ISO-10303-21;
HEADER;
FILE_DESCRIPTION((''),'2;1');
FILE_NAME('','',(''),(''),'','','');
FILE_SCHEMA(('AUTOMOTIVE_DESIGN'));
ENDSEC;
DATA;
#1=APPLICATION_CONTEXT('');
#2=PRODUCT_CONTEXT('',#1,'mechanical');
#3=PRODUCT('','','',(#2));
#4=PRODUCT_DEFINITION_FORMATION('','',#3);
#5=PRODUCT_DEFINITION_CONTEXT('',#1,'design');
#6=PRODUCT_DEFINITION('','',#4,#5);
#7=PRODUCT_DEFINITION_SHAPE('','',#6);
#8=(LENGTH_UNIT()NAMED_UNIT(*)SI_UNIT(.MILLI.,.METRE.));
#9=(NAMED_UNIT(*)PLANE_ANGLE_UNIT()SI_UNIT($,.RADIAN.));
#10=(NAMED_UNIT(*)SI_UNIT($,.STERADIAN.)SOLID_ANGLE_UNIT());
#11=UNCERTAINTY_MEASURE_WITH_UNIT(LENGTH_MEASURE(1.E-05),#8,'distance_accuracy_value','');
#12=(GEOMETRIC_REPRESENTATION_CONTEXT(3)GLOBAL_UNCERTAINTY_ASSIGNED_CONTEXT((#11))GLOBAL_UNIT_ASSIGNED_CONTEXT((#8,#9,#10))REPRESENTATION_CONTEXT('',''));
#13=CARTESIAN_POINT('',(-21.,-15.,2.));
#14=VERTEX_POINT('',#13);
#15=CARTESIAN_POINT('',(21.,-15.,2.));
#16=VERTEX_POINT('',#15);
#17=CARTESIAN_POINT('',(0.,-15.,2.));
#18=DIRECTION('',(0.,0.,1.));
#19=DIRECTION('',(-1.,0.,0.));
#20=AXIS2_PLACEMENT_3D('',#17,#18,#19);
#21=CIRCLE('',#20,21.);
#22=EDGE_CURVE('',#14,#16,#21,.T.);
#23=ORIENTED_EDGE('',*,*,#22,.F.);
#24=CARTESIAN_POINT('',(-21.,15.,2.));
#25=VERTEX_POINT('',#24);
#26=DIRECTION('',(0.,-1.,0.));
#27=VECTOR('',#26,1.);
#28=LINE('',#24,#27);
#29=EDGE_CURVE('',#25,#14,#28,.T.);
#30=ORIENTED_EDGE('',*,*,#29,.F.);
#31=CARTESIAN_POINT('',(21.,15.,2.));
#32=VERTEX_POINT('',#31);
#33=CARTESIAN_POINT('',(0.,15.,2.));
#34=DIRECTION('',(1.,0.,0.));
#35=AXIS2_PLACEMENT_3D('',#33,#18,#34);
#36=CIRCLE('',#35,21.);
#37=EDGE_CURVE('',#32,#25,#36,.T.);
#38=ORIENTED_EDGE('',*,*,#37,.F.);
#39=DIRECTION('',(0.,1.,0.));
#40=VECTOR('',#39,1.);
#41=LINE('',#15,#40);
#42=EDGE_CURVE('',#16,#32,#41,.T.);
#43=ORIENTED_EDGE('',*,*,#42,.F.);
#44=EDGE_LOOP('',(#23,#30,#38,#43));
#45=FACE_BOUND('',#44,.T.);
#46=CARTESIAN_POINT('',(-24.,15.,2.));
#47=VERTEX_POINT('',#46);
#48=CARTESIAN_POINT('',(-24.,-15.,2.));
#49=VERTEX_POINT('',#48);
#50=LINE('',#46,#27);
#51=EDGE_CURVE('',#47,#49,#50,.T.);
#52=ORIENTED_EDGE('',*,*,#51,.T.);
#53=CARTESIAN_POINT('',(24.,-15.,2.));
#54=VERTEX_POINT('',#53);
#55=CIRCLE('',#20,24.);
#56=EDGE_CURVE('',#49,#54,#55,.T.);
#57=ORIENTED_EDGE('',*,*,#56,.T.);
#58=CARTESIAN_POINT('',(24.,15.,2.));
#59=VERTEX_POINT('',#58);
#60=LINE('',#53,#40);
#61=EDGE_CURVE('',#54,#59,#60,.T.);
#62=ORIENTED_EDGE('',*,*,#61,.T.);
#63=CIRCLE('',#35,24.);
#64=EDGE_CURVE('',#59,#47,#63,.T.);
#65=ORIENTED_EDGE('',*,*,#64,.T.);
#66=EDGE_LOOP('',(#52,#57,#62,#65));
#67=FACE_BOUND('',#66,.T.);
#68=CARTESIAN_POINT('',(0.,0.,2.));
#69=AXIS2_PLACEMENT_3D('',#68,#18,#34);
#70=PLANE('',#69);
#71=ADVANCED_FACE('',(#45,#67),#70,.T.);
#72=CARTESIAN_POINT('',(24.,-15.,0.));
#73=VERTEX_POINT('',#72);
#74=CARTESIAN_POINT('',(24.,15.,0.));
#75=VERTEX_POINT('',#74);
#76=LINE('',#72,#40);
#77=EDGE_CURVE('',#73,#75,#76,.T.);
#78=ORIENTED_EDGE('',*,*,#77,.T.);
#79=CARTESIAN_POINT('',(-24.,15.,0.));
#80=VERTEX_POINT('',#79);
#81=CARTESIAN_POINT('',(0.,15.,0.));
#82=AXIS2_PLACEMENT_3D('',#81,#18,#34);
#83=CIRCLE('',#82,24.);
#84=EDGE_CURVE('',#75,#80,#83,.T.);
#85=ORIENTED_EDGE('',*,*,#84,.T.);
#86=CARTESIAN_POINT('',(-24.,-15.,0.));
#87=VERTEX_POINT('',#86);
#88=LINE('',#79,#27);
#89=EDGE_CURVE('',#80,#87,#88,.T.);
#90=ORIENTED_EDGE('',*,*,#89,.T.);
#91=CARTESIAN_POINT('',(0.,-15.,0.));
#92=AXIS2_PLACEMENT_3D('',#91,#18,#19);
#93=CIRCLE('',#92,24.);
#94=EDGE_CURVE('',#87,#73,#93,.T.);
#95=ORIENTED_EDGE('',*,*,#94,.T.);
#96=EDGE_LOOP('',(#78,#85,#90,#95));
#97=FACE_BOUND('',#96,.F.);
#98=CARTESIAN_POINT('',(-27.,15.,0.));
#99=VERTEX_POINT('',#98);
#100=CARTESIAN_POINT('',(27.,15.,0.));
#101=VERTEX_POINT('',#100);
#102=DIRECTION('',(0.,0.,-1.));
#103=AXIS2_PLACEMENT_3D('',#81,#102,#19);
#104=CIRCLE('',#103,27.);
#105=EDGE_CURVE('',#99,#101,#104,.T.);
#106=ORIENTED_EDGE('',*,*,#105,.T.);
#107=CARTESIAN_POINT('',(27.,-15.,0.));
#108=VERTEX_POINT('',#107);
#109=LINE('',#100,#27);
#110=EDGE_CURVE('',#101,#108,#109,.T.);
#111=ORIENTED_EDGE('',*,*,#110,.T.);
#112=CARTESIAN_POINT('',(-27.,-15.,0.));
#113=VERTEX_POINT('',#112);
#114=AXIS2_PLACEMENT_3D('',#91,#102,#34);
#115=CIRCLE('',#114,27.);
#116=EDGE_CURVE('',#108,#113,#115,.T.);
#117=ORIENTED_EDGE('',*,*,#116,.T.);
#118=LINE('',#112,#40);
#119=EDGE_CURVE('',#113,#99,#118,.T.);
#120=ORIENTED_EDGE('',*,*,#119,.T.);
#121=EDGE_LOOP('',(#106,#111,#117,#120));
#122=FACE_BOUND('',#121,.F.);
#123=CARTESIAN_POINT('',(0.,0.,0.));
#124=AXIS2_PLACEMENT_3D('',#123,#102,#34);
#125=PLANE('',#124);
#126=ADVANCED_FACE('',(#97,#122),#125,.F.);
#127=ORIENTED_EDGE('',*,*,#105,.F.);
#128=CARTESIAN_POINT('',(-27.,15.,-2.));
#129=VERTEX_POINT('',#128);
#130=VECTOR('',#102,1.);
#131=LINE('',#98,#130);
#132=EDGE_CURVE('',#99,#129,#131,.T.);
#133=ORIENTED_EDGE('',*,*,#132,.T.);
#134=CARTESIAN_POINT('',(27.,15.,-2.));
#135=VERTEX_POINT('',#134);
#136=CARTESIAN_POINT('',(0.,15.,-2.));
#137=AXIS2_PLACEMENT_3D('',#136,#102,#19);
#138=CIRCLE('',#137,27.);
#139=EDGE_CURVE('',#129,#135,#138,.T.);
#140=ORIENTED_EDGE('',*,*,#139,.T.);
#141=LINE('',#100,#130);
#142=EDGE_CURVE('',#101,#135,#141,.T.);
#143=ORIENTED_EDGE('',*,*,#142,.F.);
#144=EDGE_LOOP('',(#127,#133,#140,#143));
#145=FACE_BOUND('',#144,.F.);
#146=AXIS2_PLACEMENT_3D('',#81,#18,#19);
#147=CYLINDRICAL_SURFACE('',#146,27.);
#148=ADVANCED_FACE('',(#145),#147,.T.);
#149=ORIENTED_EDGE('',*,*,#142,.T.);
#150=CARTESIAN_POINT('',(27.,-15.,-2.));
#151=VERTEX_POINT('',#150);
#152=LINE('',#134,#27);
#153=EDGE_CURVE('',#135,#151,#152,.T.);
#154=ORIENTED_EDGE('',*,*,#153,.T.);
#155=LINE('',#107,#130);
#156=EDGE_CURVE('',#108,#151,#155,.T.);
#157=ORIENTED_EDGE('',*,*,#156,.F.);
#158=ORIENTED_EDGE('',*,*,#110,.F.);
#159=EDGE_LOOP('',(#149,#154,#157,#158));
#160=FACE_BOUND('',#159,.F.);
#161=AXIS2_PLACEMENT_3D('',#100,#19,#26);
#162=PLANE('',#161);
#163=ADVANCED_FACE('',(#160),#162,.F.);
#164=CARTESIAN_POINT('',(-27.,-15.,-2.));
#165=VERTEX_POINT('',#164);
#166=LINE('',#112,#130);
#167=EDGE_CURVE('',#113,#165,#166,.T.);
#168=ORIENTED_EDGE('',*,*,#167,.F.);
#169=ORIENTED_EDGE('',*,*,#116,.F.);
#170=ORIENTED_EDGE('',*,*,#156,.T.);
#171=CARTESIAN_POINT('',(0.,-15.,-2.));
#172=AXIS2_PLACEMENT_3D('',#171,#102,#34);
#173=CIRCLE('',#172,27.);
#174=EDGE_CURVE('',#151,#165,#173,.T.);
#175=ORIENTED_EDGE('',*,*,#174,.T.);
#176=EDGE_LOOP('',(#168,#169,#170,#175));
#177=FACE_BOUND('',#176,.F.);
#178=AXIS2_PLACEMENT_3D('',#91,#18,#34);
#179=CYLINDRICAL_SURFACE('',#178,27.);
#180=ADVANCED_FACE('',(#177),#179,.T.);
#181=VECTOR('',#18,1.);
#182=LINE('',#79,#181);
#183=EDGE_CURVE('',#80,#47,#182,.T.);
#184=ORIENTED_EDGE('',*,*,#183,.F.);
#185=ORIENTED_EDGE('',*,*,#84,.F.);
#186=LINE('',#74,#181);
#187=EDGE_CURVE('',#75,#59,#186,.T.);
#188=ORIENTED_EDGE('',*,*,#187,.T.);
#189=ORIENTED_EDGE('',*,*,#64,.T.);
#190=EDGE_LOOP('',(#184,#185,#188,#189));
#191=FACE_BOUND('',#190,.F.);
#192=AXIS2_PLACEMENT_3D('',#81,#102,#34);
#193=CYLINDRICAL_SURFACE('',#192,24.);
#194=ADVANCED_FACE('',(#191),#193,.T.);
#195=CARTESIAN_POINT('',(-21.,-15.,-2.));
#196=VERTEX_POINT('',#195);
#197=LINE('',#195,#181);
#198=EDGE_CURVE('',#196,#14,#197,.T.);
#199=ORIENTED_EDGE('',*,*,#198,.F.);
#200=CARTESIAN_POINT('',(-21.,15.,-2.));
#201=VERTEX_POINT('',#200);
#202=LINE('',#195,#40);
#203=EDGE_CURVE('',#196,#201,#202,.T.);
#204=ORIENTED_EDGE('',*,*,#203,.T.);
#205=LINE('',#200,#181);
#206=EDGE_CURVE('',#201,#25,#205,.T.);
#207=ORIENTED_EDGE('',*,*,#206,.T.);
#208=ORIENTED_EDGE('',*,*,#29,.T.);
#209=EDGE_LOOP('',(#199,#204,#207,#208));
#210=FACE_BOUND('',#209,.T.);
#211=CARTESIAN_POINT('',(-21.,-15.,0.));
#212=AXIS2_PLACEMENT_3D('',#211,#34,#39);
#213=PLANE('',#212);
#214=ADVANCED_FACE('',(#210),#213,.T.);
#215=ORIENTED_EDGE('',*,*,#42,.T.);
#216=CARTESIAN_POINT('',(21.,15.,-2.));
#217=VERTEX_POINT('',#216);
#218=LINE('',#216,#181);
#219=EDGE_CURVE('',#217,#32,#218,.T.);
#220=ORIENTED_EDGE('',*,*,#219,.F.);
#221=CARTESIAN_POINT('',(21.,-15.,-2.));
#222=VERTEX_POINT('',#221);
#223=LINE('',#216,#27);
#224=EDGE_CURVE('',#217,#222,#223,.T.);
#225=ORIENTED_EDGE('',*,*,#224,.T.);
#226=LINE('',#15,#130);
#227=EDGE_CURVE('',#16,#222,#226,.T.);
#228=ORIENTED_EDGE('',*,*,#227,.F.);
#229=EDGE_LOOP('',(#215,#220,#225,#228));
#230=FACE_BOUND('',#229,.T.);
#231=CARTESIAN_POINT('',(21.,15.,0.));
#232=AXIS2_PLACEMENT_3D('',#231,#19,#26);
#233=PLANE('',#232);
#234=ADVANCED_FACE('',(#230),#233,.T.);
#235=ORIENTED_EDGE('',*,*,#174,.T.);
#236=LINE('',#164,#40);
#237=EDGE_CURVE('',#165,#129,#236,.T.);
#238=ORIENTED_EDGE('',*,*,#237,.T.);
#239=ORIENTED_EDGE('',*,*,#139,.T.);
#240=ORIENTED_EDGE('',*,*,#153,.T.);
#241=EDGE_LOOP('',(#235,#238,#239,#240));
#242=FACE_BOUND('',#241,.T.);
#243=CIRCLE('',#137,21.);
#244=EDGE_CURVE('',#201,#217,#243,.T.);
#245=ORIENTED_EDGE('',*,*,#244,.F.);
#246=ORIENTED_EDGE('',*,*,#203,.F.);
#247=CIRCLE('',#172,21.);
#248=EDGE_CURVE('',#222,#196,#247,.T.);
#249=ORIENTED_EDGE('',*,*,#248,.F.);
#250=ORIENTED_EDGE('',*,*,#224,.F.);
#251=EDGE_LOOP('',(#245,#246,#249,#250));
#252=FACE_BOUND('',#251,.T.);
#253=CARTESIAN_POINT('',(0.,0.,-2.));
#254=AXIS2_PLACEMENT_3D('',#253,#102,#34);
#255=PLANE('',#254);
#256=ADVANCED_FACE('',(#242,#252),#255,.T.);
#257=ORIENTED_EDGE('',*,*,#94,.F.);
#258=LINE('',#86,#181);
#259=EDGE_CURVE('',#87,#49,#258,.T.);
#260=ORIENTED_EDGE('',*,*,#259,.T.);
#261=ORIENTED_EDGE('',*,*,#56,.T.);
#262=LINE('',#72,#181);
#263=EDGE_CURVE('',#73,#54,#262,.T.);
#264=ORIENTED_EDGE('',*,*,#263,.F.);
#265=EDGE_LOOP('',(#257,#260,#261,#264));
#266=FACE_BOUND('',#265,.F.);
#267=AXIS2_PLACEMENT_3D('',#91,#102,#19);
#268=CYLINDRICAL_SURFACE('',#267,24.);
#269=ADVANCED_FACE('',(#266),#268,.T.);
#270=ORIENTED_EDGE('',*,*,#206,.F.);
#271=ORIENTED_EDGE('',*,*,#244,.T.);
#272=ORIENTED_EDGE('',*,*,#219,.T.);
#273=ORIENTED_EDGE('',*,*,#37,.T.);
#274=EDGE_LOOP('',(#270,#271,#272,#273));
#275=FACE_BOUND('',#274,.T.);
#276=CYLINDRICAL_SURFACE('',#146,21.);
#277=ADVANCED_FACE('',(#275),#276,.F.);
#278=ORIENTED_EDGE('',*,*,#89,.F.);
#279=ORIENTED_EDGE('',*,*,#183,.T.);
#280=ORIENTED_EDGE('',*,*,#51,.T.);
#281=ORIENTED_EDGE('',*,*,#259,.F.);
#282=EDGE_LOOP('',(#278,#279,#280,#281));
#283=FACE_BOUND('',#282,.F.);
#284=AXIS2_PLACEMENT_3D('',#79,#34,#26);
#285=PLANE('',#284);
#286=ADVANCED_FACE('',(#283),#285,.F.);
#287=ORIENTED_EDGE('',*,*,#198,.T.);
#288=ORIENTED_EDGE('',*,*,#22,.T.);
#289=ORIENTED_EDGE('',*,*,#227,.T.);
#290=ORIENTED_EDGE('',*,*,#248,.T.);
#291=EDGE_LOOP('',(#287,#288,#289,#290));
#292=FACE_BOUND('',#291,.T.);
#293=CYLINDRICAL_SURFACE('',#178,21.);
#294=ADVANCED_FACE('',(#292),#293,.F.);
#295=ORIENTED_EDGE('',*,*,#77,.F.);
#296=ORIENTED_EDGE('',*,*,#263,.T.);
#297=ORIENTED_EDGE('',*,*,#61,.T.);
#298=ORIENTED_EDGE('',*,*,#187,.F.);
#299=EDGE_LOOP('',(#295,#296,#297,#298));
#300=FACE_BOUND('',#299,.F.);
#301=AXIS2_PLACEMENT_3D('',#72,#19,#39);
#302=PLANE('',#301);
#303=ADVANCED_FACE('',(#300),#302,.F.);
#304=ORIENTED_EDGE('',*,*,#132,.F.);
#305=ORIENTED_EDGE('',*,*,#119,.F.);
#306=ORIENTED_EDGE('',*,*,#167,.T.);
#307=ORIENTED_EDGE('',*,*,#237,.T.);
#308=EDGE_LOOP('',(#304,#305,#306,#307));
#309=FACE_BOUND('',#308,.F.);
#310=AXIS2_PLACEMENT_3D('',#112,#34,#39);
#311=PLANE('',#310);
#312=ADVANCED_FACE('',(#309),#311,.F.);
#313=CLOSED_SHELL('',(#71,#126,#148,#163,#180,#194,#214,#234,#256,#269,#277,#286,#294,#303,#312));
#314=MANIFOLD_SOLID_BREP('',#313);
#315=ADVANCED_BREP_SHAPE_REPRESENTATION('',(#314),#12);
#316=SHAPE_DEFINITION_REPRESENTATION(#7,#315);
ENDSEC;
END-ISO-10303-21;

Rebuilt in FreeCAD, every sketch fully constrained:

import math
import FreeCAD as App
import Part
import Sketcher
from FreeCAD import Vector
Q = App.Units.Quantity

doc = App.newDocument("Part")
params = doc.addObject("Spreadsheet::Sheet", "Params")
for row, (alias, value) in enumerate([
    ("sketch1_radius", "24 mm"),
    ("sketch1_radius2", "21 mm"),
    ("sketch1_height", "30 mm"),
    ("pad1_length", "2 mm"),
    ("sketch2_radius", "27 mm"),
    ("sketch2_radius2", "21 mm"),
    ("sketch2_height", "30 mm"),
    ("pad2_length", "2 mm"),
], start=1):
    params.set(f"A{row}", alias)
    params.set(f"B{row}", "=" + value)
    params.setAlias(f"B{row}", alias)

body = doc.addObject("PartDesign::Body", "Body")

sketch1 = body.newObject("Sketcher::SketchObject", "Sketch")
sketch1.AttachmentSupport = (doc.getObject("XY_Plane"), [""])
sketch1.MapMode = "FlatFace"
sketch1.addGeometry([
    Part.ArcOfCircle(Part.Circle(Vector(0, 15, 0), Vector(0, 0, 1), 24), math.radians(0), math.radians(180)),
    Part.LineSegment(Vector(-24, 15, 0), Vector(-24, -15, 0)),
    Part.ArcOfCircle(Part.Circle(Vector(0, -15, 0), Vector(0, 0, 1), 24), math.radians(180), math.radians(360)),
    Part.LineSegment(Vector(24, -15, 0), Vector(24, 15, 0)),
    Part.ArcOfCircle(Part.Circle(Vector(0, 15, 0), Vector(0, 0, 1), 21), math.radians(0), math.radians(180)),
    Part.LineSegment(Vector(21, 15, 0), Vector(21, -15, 0)),
    Part.ArcOfCircle(Part.Circle(Vector(0, -15, 0), Vector(0, 0, 1), 21), math.radians(180), math.radians(360)),
    Part.LineSegment(Vector(-21, -15, 0), Vector(-21, 15, 0)),
], False)
sketch1.addConstraint([
    Sketcher.Constraint("Tangent", 0, 2, 1, 1),
    Sketcher.Constraint("Tangent", 1, 2, 2, 1),
    Sketcher.Constraint("Tangent", 2, 2, 3, 1),
    Sketcher.Constraint("Tangent", 3, 2, 0, 1),
    Sketcher.Constraint("Tangent", 4, 1, 5, 1),
    Sketcher.Constraint("Tangent", 5, 2, 6, 2),
    Sketcher.Constraint("Tangent", 6, 1, 7, 1),
    Sketcher.Constraint("Tangent", 7, 2, 4, 2),
    Sketcher.Constraint("Vertical", 1),
    Sketcher.Constraint("Vertical", 3),
    Sketcher.Constraint("Vertical", 5),
    Sketcher.Constraint("Vertical", 7),
    Sketcher.Constraint("Coincident", 4, 3, 0, 3),
    Sketcher.Constraint("Symmetric", 0, 3, 2, 3, -1, 1),
    Sketcher.Constraint("Horizontal", 6, 3, 1, 2),
    Sketcher.Constraint("Radius", 0, Q("24 mm")),
    Sketcher.Constraint("Radius", 4, Q("21 mm")),
    Sketcher.Constraint("DistanceY", 1, 2, 1, 1, Q("30 mm")),
])
sketch1.setExpression("Constraints[15]", "Params.sketch1_radius")
sketch1.setExpression("Constraints[16]", "Params.sketch1_radius2")
sketch1.setExpression("Constraints[17]", "Params.sketch1_height")
pad1 = body.newObject("PartDesign::Pad", "Pad")
pad1.Profile = sketch1
pad1.setExpression("Length", "Params.pad1_length")

sketch2 = body.newObject("Sketcher::SketchObject", "Sketch001")
sketch2.AttachmentSupport = (doc.getObject("XY_Plane"), [""])
sketch2.MapMode = "FlatFace"
sketch2.addGeometry([
    Part.ArcOfCircle(Part.Circle(Vector(0, -15, 0), Vector(0, 0, 1), 27), math.radians(180), math.radians(360)),
    Part.LineSegment(Vector(-27, -15, 0), Vector(-27, 15, 0)),
    Part.ArcOfCircle(Part.Circle(Vector(0, 15, 0), Vector(0, 0, 1), 27), math.radians(0), math.radians(180)),
    Part.LineSegment(Vector(27, 15, 0), Vector(27, -15, 0)),
    Part.ArcOfCircle(Part.Circle(Vector(0, -15, 0), Vector(0, 0, 1), 21), math.radians(180), math.radians(360)),
    Part.LineSegment(Vector(21, -15, 0), Vector(21, 15, 0)),
    Part.ArcOfCircle(Part.Circle(Vector(0, 15, 0), Vector(0, 0, 1), 21), math.radians(0), math.radians(180)),
    Part.LineSegment(Vector(-21, 15, 0), Vector(-21, -15, 0)),
], False)
sketch2.addConstraint([
    Sketcher.Constraint("Tangent", 0, 1, 1, 1),
    Sketcher.Constraint("Tangent", 1, 2, 2, 2),
    Sketcher.Constraint("Tangent", 2, 1, 3, 1),
    Sketcher.Constraint("Tangent", 3, 2, 0, 2),
    Sketcher.Constraint("Tangent", 4, 2, 5, 1),
    Sketcher.Constraint("Tangent", 5, 2, 6, 1),
    Sketcher.Constraint("Tangent", 6, 2, 7, 1),
    Sketcher.Constraint("Tangent", 7, 2, 4, 1),
    Sketcher.Constraint("Vertical", 1),
    Sketcher.Constraint("Vertical", 3),
    Sketcher.Constraint("Vertical", 5),
    Sketcher.Constraint("Vertical", 7),
    Sketcher.Constraint("Coincident", 4, 3, 0, 3),
    Sketcher.Constraint("Symmetric", 0, 3, 2, 3, -1, 1),
    Sketcher.Constraint("Horizontal", 6, 3, 1, 2),
    Sketcher.Constraint("Radius", 0, Q("27 mm")),
    Sketcher.Constraint("Radius", 4, Q("21 mm")),
    Sketcher.Constraint("DistanceY", 1, 1, 1, 2, Q("30 mm")),
])
sketch2.setExpression("Constraints[15]", "Params.sketch2_radius")
sketch2.setExpression("Constraints[16]", "Params.sketch2_radius2")
sketch2.setExpression("Constraints[17]", "Params.sketch2_height")
pad2 = body.newObject("PartDesign::Pad", "Pad001")
pad2.Profile = sketch2
pad2.setExpression("Length", "Params.pad2_length")
pad2.Reversed = True

doc.recompute()
